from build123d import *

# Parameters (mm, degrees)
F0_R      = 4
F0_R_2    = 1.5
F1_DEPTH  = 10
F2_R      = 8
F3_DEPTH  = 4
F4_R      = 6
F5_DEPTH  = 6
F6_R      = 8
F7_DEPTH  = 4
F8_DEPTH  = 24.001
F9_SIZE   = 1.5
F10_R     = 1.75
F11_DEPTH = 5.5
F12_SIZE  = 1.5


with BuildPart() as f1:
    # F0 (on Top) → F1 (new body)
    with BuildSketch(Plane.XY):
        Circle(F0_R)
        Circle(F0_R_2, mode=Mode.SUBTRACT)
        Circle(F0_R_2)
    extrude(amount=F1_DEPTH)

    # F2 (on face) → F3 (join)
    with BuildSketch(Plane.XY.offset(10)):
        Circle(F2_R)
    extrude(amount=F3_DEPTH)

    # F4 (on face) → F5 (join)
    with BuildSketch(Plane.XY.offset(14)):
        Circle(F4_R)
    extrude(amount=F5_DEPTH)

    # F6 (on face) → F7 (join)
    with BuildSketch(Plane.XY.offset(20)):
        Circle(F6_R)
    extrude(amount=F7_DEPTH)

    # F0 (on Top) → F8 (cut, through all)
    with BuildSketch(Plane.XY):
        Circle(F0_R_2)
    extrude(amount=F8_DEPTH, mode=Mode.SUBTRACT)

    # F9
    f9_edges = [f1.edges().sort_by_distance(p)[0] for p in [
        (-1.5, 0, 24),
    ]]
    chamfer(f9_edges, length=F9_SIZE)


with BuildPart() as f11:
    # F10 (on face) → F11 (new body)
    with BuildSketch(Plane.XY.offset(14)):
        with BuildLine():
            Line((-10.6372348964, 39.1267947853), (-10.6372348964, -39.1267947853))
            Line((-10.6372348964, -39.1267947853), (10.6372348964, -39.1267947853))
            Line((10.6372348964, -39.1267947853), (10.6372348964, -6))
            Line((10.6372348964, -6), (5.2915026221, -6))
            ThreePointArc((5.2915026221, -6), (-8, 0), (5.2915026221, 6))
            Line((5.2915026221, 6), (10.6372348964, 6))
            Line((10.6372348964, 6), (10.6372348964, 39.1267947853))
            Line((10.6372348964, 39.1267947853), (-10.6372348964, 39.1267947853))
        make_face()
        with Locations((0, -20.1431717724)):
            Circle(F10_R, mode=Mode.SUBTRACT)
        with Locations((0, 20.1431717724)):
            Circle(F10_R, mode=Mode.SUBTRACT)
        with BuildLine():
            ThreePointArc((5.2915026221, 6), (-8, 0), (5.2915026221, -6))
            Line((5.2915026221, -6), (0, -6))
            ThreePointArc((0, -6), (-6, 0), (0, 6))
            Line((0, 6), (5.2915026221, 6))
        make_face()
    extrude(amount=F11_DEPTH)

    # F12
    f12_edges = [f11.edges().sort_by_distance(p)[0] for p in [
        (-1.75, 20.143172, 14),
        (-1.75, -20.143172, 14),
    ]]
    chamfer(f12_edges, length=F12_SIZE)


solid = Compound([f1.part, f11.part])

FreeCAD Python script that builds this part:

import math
import FreeCAD as App
import Part
import Sketcher

V = App.Vector


def edges_at(feature, points):
    """Names of the edges that pass closest to the given points."""
    edges = feature.Shape.Edges
    near = lambda p: min(range(len(edges)), key=lambda i: edges[i].distToShape(Part.Vertex(*p))[0])
    return sorted({f"Edge{near(p) + 1}" for p in points})

doc = App.newDocument("Part")
body = doc.addObject("PartDesign::Body", "Body")

# Sketch on XY plane
sketch1 = body.newObject("Sketcher::SketchObject", "Sketch")
sketch1.AttachmentSupport = (doc.getObject("XY_Plane"), [""])
sketch1.MapMode = "FlatFace"
sketch1.addGeometry(Part.Circle(V(0, 0, 0), V(0, 0, 1), 4), False)
sketch1.addConstraint([
    Sketcher.Constraint("Coincident", 0, 3, -1, 1),
    Sketcher.Constraint("Diameter", 0, 8.0),
])
pad1 = body.newObject("PartDesign::Pad", "Pad")
pad1.Profile = sketch1
pad1.Length = 10

# Sketch on XY plane
sketch2 = body.newObject("Sketcher::SketchObject", "Sketch001")
sketch2.AttachmentSupport = (doc.getObject("XY_Plane"), [""])
sketch2.MapMode = "FlatFace"
sketch2.AttachmentOffset = App.Placement(V(0, 0, 10), App.Rotation())
sketch2.addGeometry(Part.Circle(V(0, 0, 0), V(0, 0, 1), 8), False)
sketch2.addConstraint([
    Sketcher.Constraint("Coincident", 0, 3, -1, 1),
    Sketcher.Constraint("Diameter", 0, 16.0),
])
pad2 = body.newObject("PartDesign::Pad", "Pad001")
pad2.Profile = sketch2
pad2.Length = 4

# Sketch on XY plane
sketch3 = body.newObject("Sketcher::SketchObject", "Sketch002")
sketch3.AttachmentSupport = (doc.getObject("XY_Plane"), [""])
sketch3.MapMode = "FlatFace"
sketch3.AttachmentOffset = App.Placement(V(0, 0, 14), App.Rotation())
sketch3.addGeometry(Part.Circle(V(0, 0, 0), V(0, 0, 1), 6), False)
sketch3.addConstraint([
    Sketcher.Constraint("Coincident", 0, 3, -1, 1),
    Sketcher.Constraint("Diameter", 0, 12.0),
])
pad3 = body.newObject("PartDesign::Pad", "Pad002")
pad3.Profile = sketch3
pad3.Length = 6

# Sketch on XY plane
sketch4 = body.newObject("Sketcher::SketchObject", "Sketch003")
sketch4.AttachmentSupport = (doc.getObject("XY_Plane"), [""])
sketch4.MapMode = "FlatFace"
sketch4.AttachmentOffset = App.Placement(V(0, 0, 20), App.Rotation())
sketch4.addGeometry(Part.Circle(V(0, 0, 0), V(0, 0, 1), 8), False)
sketch4.addConstraint([
    Sketcher.Constraint("Coincident", 0, 3, -1, 1),
    Sketcher.Constraint("Diameter", 0, 16.0),
])
pad4 = body.newObject("PartDesign::Pad", "Pad003")
pad4.Profile = sketch4
pad4.Length = 4

# Sketch on XY plane
sketch5 = body.newObject("Sketcher::SketchObject", "Sketch004")
sketch5.AttachmentSupport = (doc.getObject("XY_Plane"), [""])
sketch5.MapMode = "FlatFace"
sketch5.addGeometry(Part.Circle(V(0, 0, 0), V(0, 0, 1), 1.5), False)
sketch5.addConstraint([
    Sketcher.Constraint("Coincident", 0, 3, -1, 1),
    Sketcher.Constraint("Diameter", 0, 3.0),
])
pocket1 = body.newObject("PartDesign::Pocket", "Pocket")
pocket1.Profile = sketch5
pocket1.Type = "ThroughAll"
pocket1.Reversed = True
doc.recompute()

chamfer = body.newObject("PartDesign::Chamfer", "Chamfer")
chamfer.Base = (pocket1, edges_at(pocket1, [(-1.5, 0, 24)]))
chamfer.Size = 1.5
body2 = doc.addObject("PartDesign::Body", "Body001")

# Sketch on XY plane
sketch6 = body2.newObject("Sketcher::SketchObject", "Sketch005")
sketch6.AttachmentSupport = (doc.getObject("XY_Plane001"), [""])
sketch6.MapMode = "FlatFace"
sketch6.AttachmentOffset = App.Placement(V(0, 0, 14), App.Rotation())
sketch6.addGeometry([
    Part.LineSegment(V(-10.6, 39.1, 0), V(-10.6, -39.1, 0)),  # 0
    Part.LineSegment(V(-10.6, -39.1, 0), V(10.6, -39.1, 0)),  # 1
    Part.LineSegment(V(10.6, -39.1, 0), V(10.6, -6, 0)),  # 2
    Part.LineSegment(V(10.6, -6, 0), V(0, -6, 0)),  # 3
    Part.ArcOfCircle(Part.Circle(V(0, 0, 0), V(0, 0, 1), 6), math.radians(90), math.radians(270)),  # 4
    Part.LineSegment(V(0, 6, 0), V(10.6, 6, 0)),  # 5
    Part.LineSegment(V(10.6, 6, 0), V(10.6, 39.1, 0)),  # 6
    Part.LineSegment(V(10.6, 39.1, 0), V(-10.6, 39.1, 0)),  # 7
    Part.Circle(V(0, -20.1, 0), V(0, 0, 1), 1.8),  # 8
    Part.Circle(V(0, 20.1, 0), V(0, 0, 1), 1.8),  # 9
], False)
sketch6.addConstraint([
    Sketcher.Constraint("Coincident", 0, 2, 1, 1),
    Sketcher.Constraint("Coincident", 1, 2, 2, 1),
    Sketcher.Constraint("Coincident", 2, 2, 3, 1),
    Sketcher.Constraint("Tangent", 3, 2, 4, 2),
    Sketcher.Constraint("Tangent", 4, 1, 5, 1),
    Sketcher.Constraint("Coincident", 5, 2, 6, 1),
    Sketcher.Constraint("Coincident", 6, 2, 7, 1),
    Sketcher.Constraint("Coincident", 7, 2, 0, 1),
    Sketcher.Constraint("Vertical", 0),
    Sketcher.Constraint("Horizontal", 1),
    Sketcher.Constraint("Vertical", 2),
    Sketcher.Constraint("Horizontal", 3),
    Sketcher.Constraint("Horizontal", 5),
    Sketcher.Constraint("Vertical", 6),
    Sketcher.Constraint("Horizontal", 7),
    Sketcher.Constraint("Coincident", 4, 3, -1, 1),
    Sketcher.Constraint("Equal", 8, 9),
    Sketcher.Constraint("Symmetric", 8, 3, 9, 3, -1, 1),
    Sketcher.Constraint("Symmetric", 0, 2, 6, 2, -1, 1),
    Sketcher.Constraint("PointOnObject", 8, 3, -2),
    Sketcher.Constraint("Vertical", 2, 2, 5, 2),
    Sketcher.Constraint("Radius", 4, 6.0),
    Sketcher.Constraint("Diameter", 8, 3.5),
    Sketcher.Constraint("DistanceX", 1, 1, 1, 2, 21.27447),
    Sketcher.Constraint("DistanceY", 0, 2, 0, 1, 78.25359),
    Sketcher.Constraint("DistanceY", 8, 3, -1, 1, 20.143172),
])
pad5 = body2.newObject("PartDesign::Pad", "Pad004")
pad5.Profile = sketch6
pad5.Length = 5.5
doc.recompute()

chamfer2 = body2.newObject("PartDesign::Chamfer", "Chamfer001")
chamfer2.Base = (pad5, edges_at(pad5, [(-1.75, 20.143, 14), (-1.75, -20.143, 14)]))
chamfer2.Size = 1.5

doc.recompute()
